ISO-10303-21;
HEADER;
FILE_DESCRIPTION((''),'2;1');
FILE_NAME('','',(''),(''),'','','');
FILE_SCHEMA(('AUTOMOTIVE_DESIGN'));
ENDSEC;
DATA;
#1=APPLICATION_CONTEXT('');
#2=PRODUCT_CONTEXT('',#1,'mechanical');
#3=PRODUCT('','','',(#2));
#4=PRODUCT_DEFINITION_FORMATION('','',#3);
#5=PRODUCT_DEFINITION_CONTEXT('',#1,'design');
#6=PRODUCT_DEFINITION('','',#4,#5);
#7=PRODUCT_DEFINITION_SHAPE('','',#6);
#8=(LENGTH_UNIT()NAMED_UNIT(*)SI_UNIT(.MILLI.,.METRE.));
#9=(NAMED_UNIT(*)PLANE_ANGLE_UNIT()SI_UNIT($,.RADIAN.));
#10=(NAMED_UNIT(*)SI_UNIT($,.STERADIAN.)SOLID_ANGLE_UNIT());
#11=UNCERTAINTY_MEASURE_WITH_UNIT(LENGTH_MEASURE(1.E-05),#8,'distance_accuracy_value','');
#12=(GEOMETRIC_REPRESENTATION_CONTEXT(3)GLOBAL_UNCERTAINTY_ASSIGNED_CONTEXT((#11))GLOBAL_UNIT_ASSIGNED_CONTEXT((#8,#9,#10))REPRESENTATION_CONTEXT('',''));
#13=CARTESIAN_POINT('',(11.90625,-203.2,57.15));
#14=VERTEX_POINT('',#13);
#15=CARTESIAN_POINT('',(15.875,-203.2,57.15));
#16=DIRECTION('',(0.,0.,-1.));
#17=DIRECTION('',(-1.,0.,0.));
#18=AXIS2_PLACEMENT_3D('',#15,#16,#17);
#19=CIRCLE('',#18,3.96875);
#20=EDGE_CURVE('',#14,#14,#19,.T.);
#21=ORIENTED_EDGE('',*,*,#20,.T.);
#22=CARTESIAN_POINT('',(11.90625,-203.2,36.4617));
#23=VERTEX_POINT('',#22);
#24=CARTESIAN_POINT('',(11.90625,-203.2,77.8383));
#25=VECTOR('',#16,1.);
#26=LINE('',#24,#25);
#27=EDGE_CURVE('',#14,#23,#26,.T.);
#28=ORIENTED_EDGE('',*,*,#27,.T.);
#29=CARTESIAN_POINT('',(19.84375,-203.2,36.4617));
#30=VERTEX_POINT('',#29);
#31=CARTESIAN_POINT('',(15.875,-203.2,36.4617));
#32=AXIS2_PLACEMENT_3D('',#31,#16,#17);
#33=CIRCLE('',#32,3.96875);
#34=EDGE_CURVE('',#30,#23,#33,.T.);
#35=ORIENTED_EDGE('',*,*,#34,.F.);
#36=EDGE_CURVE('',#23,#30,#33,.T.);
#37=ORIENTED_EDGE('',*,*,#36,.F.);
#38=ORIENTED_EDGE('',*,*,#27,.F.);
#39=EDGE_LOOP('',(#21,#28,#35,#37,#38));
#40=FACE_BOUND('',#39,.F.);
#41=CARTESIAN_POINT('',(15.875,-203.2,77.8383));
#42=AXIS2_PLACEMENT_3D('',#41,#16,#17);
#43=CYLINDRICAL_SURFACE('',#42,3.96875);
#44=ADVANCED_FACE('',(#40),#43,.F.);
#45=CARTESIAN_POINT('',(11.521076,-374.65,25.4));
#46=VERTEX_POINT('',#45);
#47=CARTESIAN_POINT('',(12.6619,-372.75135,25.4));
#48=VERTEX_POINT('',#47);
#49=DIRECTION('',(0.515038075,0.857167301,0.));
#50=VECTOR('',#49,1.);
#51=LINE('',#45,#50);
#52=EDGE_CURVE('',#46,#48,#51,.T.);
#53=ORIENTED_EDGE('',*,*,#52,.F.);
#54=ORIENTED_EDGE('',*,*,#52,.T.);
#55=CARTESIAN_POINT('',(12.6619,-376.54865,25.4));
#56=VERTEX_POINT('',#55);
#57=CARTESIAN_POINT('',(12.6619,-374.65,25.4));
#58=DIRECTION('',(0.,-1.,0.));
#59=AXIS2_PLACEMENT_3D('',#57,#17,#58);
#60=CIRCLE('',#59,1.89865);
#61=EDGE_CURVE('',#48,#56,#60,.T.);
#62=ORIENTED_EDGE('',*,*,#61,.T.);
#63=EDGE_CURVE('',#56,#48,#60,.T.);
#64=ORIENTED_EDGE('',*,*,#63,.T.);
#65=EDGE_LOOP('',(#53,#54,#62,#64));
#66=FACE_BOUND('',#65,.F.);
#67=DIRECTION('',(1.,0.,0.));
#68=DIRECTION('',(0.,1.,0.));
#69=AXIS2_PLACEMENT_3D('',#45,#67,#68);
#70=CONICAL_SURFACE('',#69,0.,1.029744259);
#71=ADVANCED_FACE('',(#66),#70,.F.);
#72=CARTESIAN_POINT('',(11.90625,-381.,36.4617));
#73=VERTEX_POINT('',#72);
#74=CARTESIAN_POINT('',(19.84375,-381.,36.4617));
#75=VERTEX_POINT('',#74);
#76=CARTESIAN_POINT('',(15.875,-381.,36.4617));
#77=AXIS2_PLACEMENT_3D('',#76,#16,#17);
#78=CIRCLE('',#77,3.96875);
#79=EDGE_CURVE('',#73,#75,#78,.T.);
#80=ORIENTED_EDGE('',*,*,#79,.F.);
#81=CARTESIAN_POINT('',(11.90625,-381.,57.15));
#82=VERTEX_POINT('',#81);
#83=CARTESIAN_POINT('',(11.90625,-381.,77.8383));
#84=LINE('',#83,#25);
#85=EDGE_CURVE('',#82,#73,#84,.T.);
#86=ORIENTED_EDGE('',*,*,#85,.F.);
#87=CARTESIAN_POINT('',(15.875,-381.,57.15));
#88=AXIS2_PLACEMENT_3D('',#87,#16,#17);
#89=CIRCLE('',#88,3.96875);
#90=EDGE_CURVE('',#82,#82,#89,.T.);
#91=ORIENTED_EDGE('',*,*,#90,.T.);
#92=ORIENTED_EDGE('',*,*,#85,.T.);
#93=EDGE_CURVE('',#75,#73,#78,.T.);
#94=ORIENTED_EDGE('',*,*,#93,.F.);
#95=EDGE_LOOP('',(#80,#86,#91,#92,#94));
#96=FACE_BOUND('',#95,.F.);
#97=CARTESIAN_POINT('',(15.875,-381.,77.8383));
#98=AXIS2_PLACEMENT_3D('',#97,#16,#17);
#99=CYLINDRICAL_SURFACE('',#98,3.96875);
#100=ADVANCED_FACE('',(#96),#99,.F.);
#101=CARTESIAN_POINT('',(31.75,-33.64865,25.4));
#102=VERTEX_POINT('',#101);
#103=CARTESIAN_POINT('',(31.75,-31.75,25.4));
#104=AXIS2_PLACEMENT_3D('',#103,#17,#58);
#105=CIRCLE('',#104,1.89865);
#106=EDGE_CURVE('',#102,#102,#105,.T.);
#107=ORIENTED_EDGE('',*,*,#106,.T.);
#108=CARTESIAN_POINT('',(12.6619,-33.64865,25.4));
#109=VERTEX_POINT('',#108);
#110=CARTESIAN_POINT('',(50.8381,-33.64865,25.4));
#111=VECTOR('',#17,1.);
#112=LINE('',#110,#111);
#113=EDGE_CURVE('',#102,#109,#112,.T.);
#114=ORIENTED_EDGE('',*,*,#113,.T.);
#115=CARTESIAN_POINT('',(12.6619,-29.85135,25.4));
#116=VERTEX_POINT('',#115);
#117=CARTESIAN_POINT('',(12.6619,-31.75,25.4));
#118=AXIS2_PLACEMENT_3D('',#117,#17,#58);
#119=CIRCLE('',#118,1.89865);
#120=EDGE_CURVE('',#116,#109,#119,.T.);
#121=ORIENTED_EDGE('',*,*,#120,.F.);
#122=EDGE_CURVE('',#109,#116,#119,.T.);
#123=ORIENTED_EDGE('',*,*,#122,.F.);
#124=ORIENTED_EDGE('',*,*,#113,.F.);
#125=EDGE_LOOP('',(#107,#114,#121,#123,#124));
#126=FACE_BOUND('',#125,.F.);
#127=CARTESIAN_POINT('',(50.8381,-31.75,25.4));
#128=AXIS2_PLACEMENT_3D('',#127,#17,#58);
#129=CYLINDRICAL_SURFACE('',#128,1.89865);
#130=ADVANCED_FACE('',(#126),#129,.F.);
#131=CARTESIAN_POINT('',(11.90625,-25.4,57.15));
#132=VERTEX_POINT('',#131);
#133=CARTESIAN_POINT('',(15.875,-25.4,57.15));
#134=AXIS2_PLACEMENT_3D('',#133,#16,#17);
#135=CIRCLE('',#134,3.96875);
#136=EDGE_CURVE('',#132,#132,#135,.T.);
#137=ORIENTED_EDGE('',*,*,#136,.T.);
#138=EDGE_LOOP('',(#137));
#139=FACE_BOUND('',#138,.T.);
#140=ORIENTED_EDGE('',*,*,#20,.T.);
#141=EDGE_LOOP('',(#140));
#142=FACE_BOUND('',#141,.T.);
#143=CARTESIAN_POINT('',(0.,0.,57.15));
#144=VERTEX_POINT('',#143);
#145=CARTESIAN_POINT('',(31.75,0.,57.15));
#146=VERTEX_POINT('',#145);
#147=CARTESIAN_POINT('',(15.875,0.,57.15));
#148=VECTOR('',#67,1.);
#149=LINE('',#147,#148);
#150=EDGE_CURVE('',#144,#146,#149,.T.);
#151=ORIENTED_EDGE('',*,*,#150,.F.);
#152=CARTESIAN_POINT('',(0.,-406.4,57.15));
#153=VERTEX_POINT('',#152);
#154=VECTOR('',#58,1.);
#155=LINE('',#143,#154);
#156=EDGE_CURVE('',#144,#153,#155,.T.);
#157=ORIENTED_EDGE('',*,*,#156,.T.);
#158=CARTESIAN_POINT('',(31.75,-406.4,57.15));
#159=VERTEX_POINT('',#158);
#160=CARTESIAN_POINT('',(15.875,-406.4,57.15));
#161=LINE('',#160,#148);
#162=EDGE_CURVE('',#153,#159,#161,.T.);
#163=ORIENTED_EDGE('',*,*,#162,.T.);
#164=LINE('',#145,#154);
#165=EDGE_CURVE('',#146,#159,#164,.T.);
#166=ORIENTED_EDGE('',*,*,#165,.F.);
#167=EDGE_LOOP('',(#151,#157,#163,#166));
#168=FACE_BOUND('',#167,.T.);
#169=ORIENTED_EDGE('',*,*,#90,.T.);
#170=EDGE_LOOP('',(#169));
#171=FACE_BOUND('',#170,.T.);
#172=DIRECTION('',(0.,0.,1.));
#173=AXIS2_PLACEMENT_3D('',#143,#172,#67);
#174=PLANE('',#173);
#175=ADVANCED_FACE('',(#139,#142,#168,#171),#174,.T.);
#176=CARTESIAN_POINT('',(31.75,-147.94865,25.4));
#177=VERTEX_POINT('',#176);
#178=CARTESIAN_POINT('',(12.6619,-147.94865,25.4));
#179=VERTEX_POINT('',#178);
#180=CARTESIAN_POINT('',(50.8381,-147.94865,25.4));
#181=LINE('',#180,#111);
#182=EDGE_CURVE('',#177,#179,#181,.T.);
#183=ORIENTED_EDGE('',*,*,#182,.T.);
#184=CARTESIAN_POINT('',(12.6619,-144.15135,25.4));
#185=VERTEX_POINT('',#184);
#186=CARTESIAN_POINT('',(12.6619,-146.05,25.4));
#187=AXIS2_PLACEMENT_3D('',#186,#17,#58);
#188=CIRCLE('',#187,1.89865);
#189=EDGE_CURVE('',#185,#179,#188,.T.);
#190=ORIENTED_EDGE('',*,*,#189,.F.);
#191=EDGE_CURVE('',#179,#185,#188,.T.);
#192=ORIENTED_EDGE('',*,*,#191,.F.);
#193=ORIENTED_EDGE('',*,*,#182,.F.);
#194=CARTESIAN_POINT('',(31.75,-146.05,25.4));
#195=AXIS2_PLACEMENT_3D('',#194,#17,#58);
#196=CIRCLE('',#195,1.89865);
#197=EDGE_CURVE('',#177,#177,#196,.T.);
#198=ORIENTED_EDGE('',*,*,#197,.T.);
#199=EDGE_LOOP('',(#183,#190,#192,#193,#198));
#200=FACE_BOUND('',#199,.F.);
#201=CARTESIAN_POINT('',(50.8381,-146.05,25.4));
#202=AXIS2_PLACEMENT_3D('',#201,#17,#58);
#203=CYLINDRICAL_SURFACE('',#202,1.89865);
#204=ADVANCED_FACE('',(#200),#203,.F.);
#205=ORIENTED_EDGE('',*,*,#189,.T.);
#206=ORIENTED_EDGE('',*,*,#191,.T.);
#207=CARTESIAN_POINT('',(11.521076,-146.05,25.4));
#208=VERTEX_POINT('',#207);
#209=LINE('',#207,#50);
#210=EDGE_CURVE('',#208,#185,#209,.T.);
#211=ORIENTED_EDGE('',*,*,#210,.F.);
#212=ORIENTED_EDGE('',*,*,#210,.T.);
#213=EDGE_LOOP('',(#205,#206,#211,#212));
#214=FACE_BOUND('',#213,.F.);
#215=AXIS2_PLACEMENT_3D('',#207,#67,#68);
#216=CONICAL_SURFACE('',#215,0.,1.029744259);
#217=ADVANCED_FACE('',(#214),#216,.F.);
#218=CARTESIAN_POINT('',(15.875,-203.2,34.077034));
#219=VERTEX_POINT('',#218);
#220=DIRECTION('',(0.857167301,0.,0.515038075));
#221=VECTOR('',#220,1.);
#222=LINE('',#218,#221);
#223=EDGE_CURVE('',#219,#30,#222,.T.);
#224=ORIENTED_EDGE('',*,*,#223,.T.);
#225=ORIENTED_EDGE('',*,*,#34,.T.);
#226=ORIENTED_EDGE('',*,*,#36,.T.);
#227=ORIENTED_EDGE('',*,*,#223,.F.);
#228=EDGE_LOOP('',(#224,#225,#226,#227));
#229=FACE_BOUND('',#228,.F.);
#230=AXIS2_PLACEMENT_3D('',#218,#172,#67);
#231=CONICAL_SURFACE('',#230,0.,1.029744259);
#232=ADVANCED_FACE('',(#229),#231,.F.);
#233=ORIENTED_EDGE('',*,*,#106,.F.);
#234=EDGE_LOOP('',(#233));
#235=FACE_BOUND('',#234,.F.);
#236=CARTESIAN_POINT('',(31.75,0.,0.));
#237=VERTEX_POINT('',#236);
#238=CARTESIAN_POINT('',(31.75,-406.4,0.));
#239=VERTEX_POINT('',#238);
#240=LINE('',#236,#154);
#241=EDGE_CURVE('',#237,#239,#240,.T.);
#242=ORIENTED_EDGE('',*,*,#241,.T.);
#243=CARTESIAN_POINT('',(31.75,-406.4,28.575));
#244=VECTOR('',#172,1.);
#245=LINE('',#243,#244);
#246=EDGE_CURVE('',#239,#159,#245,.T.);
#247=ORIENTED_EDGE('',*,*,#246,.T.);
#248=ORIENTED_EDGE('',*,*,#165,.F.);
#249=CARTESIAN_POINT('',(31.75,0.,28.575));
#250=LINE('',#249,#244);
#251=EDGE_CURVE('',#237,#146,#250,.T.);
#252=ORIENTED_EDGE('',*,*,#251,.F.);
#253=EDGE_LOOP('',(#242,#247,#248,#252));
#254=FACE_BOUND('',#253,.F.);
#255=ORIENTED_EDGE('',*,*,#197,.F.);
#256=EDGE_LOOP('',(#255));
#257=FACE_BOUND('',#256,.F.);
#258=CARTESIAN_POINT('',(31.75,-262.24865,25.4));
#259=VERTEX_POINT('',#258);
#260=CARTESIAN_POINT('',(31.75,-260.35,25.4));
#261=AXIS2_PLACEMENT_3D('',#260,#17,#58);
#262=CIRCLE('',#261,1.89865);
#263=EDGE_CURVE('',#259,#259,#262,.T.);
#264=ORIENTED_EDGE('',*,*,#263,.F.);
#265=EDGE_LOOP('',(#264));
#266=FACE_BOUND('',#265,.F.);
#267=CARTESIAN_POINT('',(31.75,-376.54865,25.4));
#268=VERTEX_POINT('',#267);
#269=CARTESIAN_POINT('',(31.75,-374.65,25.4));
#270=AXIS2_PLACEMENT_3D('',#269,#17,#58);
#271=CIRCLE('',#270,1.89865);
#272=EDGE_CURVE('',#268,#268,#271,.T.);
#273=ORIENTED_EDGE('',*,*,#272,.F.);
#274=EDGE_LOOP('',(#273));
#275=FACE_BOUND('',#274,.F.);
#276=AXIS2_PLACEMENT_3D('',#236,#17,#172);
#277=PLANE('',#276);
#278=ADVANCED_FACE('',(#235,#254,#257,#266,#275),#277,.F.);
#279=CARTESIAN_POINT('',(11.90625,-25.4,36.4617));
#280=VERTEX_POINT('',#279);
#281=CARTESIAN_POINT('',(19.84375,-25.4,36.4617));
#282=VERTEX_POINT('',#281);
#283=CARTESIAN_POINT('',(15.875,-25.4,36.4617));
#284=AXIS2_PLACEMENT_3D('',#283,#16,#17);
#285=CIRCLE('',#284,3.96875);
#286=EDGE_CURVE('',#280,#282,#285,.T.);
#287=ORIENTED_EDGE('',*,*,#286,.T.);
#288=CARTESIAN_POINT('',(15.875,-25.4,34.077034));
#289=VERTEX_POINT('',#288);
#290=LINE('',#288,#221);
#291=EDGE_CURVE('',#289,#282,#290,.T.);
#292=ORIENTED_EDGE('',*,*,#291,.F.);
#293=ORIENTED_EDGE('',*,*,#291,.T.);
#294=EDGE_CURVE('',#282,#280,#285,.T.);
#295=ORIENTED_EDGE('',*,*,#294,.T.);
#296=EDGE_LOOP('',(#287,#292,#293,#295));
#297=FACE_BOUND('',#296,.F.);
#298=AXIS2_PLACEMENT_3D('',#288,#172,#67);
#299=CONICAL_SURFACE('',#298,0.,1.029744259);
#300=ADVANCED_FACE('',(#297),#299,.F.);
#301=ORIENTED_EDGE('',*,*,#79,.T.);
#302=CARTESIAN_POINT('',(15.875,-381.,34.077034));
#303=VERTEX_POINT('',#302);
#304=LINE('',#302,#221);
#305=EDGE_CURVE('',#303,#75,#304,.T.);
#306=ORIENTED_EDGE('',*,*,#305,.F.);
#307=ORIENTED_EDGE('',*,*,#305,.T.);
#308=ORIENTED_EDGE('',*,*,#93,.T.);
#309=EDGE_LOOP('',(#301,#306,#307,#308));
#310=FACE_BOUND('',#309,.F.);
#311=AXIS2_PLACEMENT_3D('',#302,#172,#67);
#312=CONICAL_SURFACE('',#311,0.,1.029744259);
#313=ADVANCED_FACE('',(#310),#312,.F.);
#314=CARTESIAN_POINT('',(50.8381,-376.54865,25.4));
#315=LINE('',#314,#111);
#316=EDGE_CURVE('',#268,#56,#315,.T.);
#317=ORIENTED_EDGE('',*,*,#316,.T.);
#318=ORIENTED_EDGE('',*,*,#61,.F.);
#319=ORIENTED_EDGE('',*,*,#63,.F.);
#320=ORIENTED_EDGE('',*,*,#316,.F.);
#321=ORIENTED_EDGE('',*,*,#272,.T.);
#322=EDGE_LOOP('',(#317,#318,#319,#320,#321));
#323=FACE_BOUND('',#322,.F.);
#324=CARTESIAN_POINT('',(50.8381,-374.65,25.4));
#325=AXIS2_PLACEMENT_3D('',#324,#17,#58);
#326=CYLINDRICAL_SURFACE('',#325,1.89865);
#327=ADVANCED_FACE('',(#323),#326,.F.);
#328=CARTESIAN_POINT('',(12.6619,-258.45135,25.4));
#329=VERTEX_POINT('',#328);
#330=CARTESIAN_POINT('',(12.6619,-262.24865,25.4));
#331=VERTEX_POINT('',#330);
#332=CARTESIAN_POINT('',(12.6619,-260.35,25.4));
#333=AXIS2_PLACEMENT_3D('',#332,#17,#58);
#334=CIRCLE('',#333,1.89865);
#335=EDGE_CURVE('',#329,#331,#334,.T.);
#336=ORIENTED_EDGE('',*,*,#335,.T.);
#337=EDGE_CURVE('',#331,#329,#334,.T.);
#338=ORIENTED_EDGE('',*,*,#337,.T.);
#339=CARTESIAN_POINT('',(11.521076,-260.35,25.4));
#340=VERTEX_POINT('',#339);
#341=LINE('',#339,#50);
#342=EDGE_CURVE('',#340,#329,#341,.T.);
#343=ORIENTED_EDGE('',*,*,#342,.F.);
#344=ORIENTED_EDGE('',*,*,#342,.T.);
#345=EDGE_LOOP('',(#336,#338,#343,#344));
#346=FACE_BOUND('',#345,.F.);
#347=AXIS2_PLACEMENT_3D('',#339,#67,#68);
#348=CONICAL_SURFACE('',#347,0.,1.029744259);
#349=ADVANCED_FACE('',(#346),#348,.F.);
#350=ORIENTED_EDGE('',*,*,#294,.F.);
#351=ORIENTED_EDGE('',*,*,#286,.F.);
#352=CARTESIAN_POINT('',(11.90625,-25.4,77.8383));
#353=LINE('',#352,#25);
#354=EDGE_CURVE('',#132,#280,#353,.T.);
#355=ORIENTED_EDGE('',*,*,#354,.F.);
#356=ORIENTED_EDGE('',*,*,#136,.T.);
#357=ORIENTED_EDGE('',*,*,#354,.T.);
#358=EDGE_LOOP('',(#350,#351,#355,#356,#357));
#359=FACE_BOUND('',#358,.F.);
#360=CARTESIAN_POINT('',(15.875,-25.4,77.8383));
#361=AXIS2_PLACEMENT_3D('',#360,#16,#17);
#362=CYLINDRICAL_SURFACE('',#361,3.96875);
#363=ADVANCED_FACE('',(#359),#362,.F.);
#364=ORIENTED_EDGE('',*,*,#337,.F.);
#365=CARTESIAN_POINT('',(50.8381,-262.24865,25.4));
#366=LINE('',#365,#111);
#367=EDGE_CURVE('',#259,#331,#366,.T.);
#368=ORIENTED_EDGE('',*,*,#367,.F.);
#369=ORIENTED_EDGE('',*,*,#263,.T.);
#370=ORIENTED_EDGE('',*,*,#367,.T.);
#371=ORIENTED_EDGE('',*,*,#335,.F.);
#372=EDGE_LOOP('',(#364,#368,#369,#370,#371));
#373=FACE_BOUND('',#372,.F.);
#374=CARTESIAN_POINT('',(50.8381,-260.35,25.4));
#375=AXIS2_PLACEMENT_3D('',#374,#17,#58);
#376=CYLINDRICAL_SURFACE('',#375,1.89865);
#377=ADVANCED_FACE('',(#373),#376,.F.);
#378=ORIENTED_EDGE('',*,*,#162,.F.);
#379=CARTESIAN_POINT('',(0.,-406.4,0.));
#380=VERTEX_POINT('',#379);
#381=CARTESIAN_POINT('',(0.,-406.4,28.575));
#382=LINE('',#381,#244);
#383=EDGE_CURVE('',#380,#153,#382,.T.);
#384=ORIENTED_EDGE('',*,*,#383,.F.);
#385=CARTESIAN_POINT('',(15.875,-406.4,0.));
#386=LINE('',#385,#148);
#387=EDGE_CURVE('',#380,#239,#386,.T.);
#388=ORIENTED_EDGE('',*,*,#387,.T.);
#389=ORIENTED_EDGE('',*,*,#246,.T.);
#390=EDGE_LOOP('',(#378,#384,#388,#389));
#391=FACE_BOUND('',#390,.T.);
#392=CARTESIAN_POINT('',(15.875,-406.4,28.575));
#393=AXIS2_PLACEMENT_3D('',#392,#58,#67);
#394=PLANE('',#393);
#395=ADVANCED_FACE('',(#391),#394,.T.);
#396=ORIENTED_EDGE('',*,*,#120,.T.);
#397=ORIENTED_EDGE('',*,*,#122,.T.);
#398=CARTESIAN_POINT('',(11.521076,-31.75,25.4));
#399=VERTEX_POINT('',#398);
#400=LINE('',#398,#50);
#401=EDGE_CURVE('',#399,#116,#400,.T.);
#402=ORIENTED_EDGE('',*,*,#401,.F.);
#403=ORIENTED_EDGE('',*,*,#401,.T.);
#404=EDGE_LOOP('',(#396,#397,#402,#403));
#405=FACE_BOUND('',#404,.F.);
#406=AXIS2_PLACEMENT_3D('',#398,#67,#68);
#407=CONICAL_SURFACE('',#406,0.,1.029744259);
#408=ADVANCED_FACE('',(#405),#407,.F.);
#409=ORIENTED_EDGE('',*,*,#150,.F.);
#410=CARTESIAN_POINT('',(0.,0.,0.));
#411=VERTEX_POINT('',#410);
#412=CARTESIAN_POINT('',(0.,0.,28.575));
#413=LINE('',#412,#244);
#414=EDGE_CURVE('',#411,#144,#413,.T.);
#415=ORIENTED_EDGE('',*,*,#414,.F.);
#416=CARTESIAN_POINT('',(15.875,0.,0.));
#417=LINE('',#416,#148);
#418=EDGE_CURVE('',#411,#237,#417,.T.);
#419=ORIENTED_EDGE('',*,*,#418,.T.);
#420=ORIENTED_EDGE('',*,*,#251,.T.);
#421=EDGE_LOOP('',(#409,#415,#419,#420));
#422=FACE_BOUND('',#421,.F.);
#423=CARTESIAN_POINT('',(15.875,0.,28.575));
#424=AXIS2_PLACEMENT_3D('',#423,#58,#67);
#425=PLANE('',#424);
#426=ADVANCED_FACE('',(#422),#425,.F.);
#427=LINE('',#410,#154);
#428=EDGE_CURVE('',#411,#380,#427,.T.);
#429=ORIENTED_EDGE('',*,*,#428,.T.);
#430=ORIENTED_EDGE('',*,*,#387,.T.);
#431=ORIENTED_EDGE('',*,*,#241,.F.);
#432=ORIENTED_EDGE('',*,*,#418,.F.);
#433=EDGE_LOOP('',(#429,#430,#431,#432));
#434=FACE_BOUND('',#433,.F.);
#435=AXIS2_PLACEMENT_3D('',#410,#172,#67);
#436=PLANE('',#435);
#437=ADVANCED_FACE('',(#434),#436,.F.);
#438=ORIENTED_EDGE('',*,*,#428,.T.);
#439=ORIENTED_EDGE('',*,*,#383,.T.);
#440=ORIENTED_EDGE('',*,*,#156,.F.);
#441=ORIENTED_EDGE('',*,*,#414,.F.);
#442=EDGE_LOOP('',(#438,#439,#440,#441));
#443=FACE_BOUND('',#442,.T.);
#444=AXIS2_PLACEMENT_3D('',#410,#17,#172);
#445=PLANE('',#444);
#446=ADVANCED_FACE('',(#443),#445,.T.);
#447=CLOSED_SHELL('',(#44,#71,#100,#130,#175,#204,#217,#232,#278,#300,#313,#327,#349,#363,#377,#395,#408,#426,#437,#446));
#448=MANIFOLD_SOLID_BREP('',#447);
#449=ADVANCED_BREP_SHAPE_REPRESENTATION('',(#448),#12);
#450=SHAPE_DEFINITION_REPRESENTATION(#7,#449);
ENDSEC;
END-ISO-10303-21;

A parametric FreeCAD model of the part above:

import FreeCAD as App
import Part
import Sketcher
Q = App.Units.Quantity

doc = App.newDocument("Part")
body = doc.addObject("PartDesign::Body", "Body")

sketch1 = body.newObject("Sketcher::SketchObject", "Sketch")
sketch1.AttachmentSupport = (doc.getObject("XZ_Plane"), [""])
sketch1.MapMode = "FlatFace"
sketch1.addGeometry(Part.LineSegment(App.Vector(0, 57.15, 0), App.Vector(0, 0, 0)), False)
sketch1.addGeometry(Part.LineSegment(App.Vector(0, 0, 0), App.Vector(31.75, 0, 0)), False)
sketch1.addGeometry(Part.LineSegment(App.Vector(31.75, 0, 0), App.Vector(31.75, 57.15, 0)), False)
sketch1.addGeometry(Part.LineSegment(App.Vector(31.75, 57.15, 0), App.Vector(0, 57.15, 0)), False)
sketch1.addConstraint(Sketcher.Constraint("Coincident", 0, 2, 1, 1))
sketch1.addConstraint(Sketcher.Constraint("Coincident", 1, 2, 2, 1))
sketch1.addConstraint(Sketcher.Constraint("Coincident", 2, 2, 3, 1))
sketch1.addConstraint(Sketcher.Constraint("Coincident", 3, 2, 0, 1))
sketch1.addConstraint(Sketcher.Constraint("Vertical", 0))
sketch1.addConstraint(Sketcher.Constraint("Horizontal", 1))
sketch1.addConstraint(Sketcher.Constraint("Vertical", 2))
sketch1.addConstraint(Sketcher.Constraint("Horizontal", 3))
sketch1.addConstraint(Sketcher.Constraint("Coincident", 0, 2, -1, 1))
sketch1.addConstraint(Sketcher.Constraint("DistanceX", 1, 1, 1, 2, Q("1.25 in")))
sketch1.addConstraint(Sketcher.Constraint("DistanceY", 0, 2, 0, 1, Q("2.25 in")))
pad1 = body.newObject("PartDesign::Pad", "Pad")
pad1.Profile = sketch1
pad1.Length = Q("16 in")

sketch2 = body.newObject("Sketcher::SketchObject", "Sketch001")
sketch2.AttachmentSupport = (doc.getObject("XY_Plane"), [""])
sketch2.MapMode = "FlatFace"
sketch2.AttachmentOffset = App.Placement(App.Vector(0, 0, 2.25 * 25.4), App.Rotation())
sketch2.addGeometry(Part.Circle(App.Vector(15.875, -381, 0), App.Vector(0, 0, 1), 3.96875), False)
sketch2.addGeometry(Part.Circle(App.Vector(15.875, -203.2, 0), App.Vector(0, 0, 1), 3.96875), False)
sketch2.addGeometry(Part.Circle(App.Vector(15.875, -25.4, 0), App.Vector(0, 0, 1), 3.96875), False)
sketch2.addConstraint(Sketcher.Constraint("Equal", 0, 1))
sketch2.addConstraint(Sketcher.Constraint("Equal", 1, 2))
sketch2.addConstraint(Sketcher.Constraint("Vertical", 0, 3, 1, 3))
sketch2.addConstraint(Sketcher.Constraint("Vertical", 1, 3, 2, 3))
sketch2.addConstraint(Sketcher.Constraint("Diameter", 0, Q("0.3125 in")))
sketch2.addConstraint(Sketcher.Constraint("DistanceY", 0, 3, -1, 1, Q("15 in")))
sketch2.addConstraint(Sketcher.Constraint("DistanceY", 1, 3, -1, 1, Q("8 in")))
sketch2.addConstraint(Sketcher.Constraint("DistanceY", 2, 3, -1, 1, Q("1 in")))
sketch2.addConstraint(Sketcher.Constraint("DistanceX", -1, 1, 0, 3, Q("0.625 in")))
doc.recompute()
hole = body.newObject("PartDesign::Hole", "Hole")
hole.Profile = sketch2
hole.ThreadType = "None"
hole.Diameter = Q("0.3125 in")
hole.DepthType = "Dimension"
hole.Depth = Q("0.8145 in")
hole.DrillPoint = "Angled"
hole.DrillPointAngle = 118

sketch3 = body.newObject("Sketcher::SketchObject", "Sketch002")
sketch3.AttachmentSupport = (doc.getObject("YZ_Plane"), [""])
sketch3.MapMode = "FlatFace"
sketch3.AttachmentOffset = App.Placement(App.Vector(0, 0, 1.25 * 25.4), App.Rotation())
sketch3.addGeometry(Part.Circle(App.Vector(-374.65, 25.4, 0), App.Vector(0, 0, 1), 1.89865), False)
sketch3.addGeometry(Part.Circle(App.Vector(-146.05, 25.4, 0), App.Vector(0, 0, 1), 1.89865), False)
sketch3.addGeometry(Part.Circle(App.Vector(-31.75, 25.4, 0), App.Vector(0, 0, 1), 1.89865), False)
sketch3.addGeometry(Part.Circle(App.Vector(-260.35, 25.4, 0), App.Vector(0, 0, 1), 1.89865), False)
sketch3.addConstraint(Sketcher.Constraint("Equal", 0, 1))
sketch3.addConstraint(Sketcher.Constraint("Equal", 1, 2))
sketch3.addConstraint(Sketcher.Constraint("Equal", 2, 3))
sketch3.addConstraint(Sketcher.Constraint("Horizontal", 0, 3, 1, 3))
sketch3.addConstraint(Sketcher.Constraint("Horizontal", 1, 3, 2, 3))
sketch3.addConstraint(Sketcher.Constraint("Horizontal", 2, 3, 3, 3))
sketch3.addConstraint(Sketcher.Constraint("DistanceY", -1, 1, 0, 3, Q("1 in")))
sketch3.addConstraint(Sketcher.Constraint("DistanceX", 0, 3, 1, 3, Q("9 in")))
sketch3.addConstraint(Sketcher.Constraint("DistanceX", 3, 3, 2, 3, Q("9 in")))
sketch3.addConstraint(Sketcher.Constraint("Diameter", 0, Q("0.1495 in")))
sketch3.addConstraint(Sketcher.Constraint("DistanceX", 1, 3, 2, 3, Q("4.5 in")))
sketch3.addConstraint(Sketcher.Constraint("DistanceX", 0, 3, -1, 1, Q("14.75 in")))
doc.recompute()
hole2 = body.newObject("PartDesign::Hole", "Hole001")
hole2.Profile = sketch3
hole2.ThreadType = "None"
hole2.Diameter = Q("0.1495 in")
hole2.DepthType = "Dimension"
hole2.Depth = Q("0.7515 in")
hole2.DrillPoint = "Angled"
hole2.DrillPointAngle = 118

doc.recompute()
